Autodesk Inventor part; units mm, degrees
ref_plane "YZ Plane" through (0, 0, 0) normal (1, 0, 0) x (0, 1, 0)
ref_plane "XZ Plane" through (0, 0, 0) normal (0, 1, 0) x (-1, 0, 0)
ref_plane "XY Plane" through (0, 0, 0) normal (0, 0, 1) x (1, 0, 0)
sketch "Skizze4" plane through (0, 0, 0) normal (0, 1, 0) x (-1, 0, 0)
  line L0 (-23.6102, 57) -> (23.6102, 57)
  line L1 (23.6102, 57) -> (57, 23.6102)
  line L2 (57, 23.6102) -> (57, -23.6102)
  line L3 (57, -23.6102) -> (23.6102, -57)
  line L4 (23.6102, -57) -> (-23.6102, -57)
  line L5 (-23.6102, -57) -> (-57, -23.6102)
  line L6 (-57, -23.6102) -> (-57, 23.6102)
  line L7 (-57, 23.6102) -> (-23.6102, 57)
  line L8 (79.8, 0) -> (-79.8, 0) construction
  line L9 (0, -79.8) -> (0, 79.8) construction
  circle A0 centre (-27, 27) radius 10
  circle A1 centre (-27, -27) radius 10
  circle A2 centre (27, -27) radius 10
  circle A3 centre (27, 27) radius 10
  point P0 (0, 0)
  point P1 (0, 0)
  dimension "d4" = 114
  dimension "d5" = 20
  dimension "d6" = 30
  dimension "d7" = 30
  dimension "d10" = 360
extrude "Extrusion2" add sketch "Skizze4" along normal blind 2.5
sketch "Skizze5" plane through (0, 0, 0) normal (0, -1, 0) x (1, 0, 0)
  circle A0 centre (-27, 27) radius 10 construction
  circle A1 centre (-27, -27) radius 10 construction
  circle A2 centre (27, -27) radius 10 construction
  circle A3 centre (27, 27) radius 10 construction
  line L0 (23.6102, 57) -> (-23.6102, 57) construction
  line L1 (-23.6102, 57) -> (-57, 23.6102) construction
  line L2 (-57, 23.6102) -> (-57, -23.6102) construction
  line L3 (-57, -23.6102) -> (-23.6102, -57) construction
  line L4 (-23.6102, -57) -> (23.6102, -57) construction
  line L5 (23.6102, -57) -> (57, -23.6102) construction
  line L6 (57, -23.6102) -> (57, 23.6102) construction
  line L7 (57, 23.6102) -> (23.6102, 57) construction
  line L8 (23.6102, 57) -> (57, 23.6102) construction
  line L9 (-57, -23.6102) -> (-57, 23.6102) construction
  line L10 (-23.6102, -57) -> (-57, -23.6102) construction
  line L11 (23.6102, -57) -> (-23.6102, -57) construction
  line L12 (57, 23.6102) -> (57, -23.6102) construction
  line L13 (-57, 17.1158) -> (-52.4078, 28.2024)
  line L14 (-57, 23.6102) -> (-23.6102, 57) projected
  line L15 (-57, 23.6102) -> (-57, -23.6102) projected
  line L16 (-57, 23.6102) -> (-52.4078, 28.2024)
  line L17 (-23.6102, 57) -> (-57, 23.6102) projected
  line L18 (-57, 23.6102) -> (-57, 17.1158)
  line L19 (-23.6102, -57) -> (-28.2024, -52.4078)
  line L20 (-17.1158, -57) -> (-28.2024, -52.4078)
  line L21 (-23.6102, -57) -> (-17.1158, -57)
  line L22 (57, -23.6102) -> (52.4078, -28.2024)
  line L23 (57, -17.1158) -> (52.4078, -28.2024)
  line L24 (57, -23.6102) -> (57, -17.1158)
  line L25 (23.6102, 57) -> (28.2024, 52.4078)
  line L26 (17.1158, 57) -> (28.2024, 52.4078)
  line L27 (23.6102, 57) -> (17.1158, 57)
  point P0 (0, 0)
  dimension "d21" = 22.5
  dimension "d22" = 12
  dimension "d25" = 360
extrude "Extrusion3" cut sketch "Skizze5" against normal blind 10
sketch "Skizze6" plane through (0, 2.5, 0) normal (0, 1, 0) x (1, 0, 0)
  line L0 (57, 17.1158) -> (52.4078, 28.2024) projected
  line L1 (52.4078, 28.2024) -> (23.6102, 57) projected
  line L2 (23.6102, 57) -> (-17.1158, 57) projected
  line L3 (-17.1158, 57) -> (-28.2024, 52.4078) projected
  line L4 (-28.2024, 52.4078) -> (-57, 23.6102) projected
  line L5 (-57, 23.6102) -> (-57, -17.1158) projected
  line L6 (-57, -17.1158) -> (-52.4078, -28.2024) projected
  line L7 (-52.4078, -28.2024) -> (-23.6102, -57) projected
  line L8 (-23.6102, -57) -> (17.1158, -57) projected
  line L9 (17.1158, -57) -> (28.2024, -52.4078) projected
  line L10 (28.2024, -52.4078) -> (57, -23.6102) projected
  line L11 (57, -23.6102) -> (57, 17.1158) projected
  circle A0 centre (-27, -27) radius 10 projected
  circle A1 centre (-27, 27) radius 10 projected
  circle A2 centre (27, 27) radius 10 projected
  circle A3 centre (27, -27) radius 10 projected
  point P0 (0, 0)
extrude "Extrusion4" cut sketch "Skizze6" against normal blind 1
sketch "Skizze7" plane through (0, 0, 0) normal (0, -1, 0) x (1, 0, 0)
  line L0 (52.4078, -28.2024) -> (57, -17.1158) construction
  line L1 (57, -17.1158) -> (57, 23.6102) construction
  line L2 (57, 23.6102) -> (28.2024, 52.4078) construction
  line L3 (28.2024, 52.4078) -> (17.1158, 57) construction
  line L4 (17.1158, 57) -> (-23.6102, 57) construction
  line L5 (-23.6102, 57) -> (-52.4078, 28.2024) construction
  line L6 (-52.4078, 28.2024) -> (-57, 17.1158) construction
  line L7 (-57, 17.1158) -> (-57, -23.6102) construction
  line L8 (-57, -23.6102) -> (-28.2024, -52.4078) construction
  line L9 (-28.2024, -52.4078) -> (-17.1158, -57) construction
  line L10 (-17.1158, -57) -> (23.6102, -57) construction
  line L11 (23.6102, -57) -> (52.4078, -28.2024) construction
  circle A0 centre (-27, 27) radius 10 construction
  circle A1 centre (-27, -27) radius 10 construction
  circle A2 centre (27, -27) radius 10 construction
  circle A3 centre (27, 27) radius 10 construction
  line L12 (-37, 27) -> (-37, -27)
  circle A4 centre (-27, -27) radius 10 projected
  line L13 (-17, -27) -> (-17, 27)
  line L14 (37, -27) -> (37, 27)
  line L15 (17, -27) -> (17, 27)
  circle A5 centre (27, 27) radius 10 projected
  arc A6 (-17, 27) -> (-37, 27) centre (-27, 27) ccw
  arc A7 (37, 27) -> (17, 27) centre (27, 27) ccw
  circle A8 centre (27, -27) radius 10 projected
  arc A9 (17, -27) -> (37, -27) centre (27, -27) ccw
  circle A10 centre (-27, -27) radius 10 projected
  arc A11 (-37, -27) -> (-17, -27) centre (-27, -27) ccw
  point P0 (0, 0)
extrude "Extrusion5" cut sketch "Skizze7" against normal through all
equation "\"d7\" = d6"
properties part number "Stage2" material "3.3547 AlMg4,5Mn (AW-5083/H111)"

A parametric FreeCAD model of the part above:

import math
import FreeCAD as App
import Part
import Sketcher

V = App.Vector
Q = App.Units.Quantity


def add_polygon(sketch, points):
    """Adds a closed chain of lines whose ends are joined by coincident constraints."""
    first, n = sketch.GeometryCount, len(points)
    for a, b in zip(points, points[1:] + points[:1]):
        sketch.addGeometry(Part.LineSegment(App.Vector(*a, 0), App.Vector(*b, 0)), False)
    for i in range(n):
        sketch.addConstraint(Sketcher.Constraint("Coincident", first + i, 2, first + (i + 1) % n, 1))

doc = App.newDocument("Part")
body = doc.addObject("PartDesign::Body", "Body")

# Sketch on XZ plane
sketch1 = body.newObject("Sketcher::SketchObject", "Sketch")
sketch1.AttachmentSupport = (doc.getObject("XZ_Plane"), [""])
sketch1.MapMode = "FlatFace"
add_polygon(sketch1, [(-24, 57), (24, 57), (57, 24), (57, -24), (24, -57), (-24, -57), (-57, -24), (-57, 24)])  # lines 0-7
sketch1.addGeometry(Part.Circle(V(27, -27, 0), V(0, 0, 1), 10), False)  # 8
sketch1.addGeometry(Part.Circle(V(-27, -27, 0), V(0, 0, 1), 10), False)  # 9
sketch1.addGeometry(Part.Circle(V(27, 27, 0), V(0, 0, 1), 10), False)  # 10
sketch1.addGeometry(Part.Circle(V(-27, 27, 0), V(0, 0, 1), 10), False)  # 11
sketch1.addConstraint([
    Sketcher.Constraint("Horizontal", 0),
    Sketcher.Constraint("Vertical", 2),
    Sketcher.Constraint("Horizontal", 4),
    Sketcher.Constraint("Vertical", 6),
    Sketcher.Constraint("Equal", 8, 9),
    Sketcher.Constraint("Equal", 9, 10),
    Sketcher.Constraint("Equal", 10, 11),
    Sketcher.Constraint("Symmetric", 9, 3, 10, 3, -1, 1),
    Sketcher.Constraint("Symmetric", 8, 3, 11, 3, -1, 1),
    Sketcher.Constraint("Symmetric", 0, 2, 4, 2, -1, 1),
    Sketcher.Constraint("Symmetric", 1, 2, 5, 2, -1, 1),
    Sketcher.Constraint("Symmetric", 8, 3, 9, 3, -2),
    Sketcher.Constraint("Perpendicular", 1, 3),
    Sketcher.Constraint("Perpendicular", 5, 7),
    Sketcher.Constraint("Horizontal", 2, 2, 5, 2),
    Sketcher.Constraint("Horizontal", 1, 2, 6, 2),
    Sketcher.Constraint("Vertical", 0, 2, 3, 2),
    Sketcher.Constraint("Equal", 4, 2),
    Sketcher.Constraint("Diameter", 8, Q("20 mm")),
    Sketcher.Constraint("DistanceY", 10, 3, 0, 2, Q("30 mm")),
    Sketcher.Constraint("DistanceX", 10, 3, 1, 2, Q("30 mm")),
    Sketcher.Constraint("DistanceX", -1, 1, 8, 3, Q("27 mm")),
    Sketcher.Constraint("DistanceX", 0, 1, 0, 2, Q("47.2204 mm")),
])
pad1 = body.newObject("PartDesign::Pad", "Pad")
pad1.Profile = sketch1
pad1.Length = 2.5
pad1.Reversed = True

# Sketch on XZ plane
sketch2 = body.newObject("Sketcher::SketchObject", "Sketch001")
sketch2.AttachmentSupport = (doc.getObject("XZ_Plane"), [""])
sketch2.MapMode = "FlatFace"
add_polygon(sketch2, [(-57, 24), (-57, 17), (-52, 28)])  # lines 0-2
add_polygon(sketch2, [(-28, -52), (-24, -57), (-17, -57)])  # lines 3-5
add_polygon(sketch2, [(52, -28), (57, -24), (57, -17)])  # lines 6-8
add_polygon(sketch2, [(28, 52), (24, 57), (17, 57)])  # lines 9-11
sketch2.addConstraint([
    Sketcher.Constraint("Vertical", 0),
    Sketcher.Constraint("Horizontal", 4),
    Sketcher.Constraint("Vertical", 7),
    Sketcher.Constraint("Horizontal", 10),
    Sketcher.Constraint("Symmetric", 2, 2, 6, 2, -1, 1),
    Sketcher.Constraint("Symmetric", 1, 2, 8, 2, -1, 1),
    Sketcher.Constraint("Symmetric", 3, 2, 9, 2, -1, 1),
    Sketcher.Constraint("Symmetric", 5, 2, 11, 2, -1, 1),
    Sketcher.Constraint("Perpendicular", 2, 3),
    Sketcher.Constraint("Perpendicular", 1, 5),
    Sketcher.Constraint("Perpendicular", 5, 8),
    Sketcher.Constraint("Perpendicular", 8, 11),
    Sketcher.Constraint("Equal", 10, 0),
    Sketcher.Constraint("Distance", 1, Q("12 mm")),
    Sketcher.Constraint("Angle", 11, Q("-22.5 deg")),
    Sketcher.Constraint("Angle", 2, Q("-135 deg")),
    Sketcher.Constraint("DistanceX", 0, 2, -1, 1, Q("57 mm")),
    Sketcher.Constraint("DistanceY", 3, 2, -1, 1, Q("57 mm")),
    Sketcher.Constraint("DistanceX", 1, 2, 4, 2, Q("35.292 mm")),
    Sketcher.Constraint("DistanceY", 5, 2, 2, 2, Q("76.018 mm")),
])
pocket1 = body.newObject("PartDesign::Pocket", "Pocket")
pocket1.Profile = sketch2
pocket1.Length = 10

# Sketch on XZ plane
sketch3 = body.newObject("Sketcher::SketchObject", "Sketch002")
sketch3.AttachmentSupport = (doc.getObject("XZ_Plane"), [""])
sketch3.MapMode = "FlatFace"
sketch3.AttachmentOffset = App.Placement(V(0, 0, -2.5), App.Rotation())
add_polygon(sketch3, [(57, 24), (57, -17), (52, -28), (24, -57), (-17, -57), (-28, -52), (-57, -24), (-57, 17), (-52, 28), (-24, 57), (17, 57), (28, 52)])  # lines 0-11
sketch3.addGeometry(Part.Circle(V(-27, 27, 0), V(0, 0, 1), 10), False)  # 12
sketch3.addGeometry(Part.Circle(V(27, 27, 0), V(0, 0, 1), 10), False)  # 13
sketch3.addGeometry(Part.Circle(V(-27, -27, 0), V(0, 0, 1), 10), False)  # 14
sketch3.addGeometry(Part.Circle(V(27, -27, 0), V(0, 0, 1), 10), False)  # 15
sketch3.addConstraint([
    Sketcher.Constraint("Vertical", 0),
    Sketcher.Constraint("Horizontal", 3),
    Sketcher.Constraint("Vertical", 6),
    Sketcher.Constraint("Horizontal", 9),
    Sketcher.Constraint("Equal", 12, 13),
    Sketcher.Constraint("Equal", 13, 14),
    Sketcher.Constraint("Equal", 14, 15),
    Sketcher.Constraint("Symmetric", 13, 3, 14, 3, -1, 1),
    Sketcher.Constraint("Symmetric", 12, 3, 15, 3, -1, 1),
    Sketcher.Constraint("Symmetric", 0, 2, 6, 2, -1, 1),
    Sketcher.Constraint("Symmetric", 1, 2, 7, 2, -1, 1),
    Sketcher.Constraint("Symmetric", 2, 2, 8, 2, -1, 1),
    Sketcher.Constraint("Symmetric", 4, 2, 10, 2, -1, 1),
    Sketcher.Constraint("Symmetric", 12, 3, 13, 3, -2),
    Sketcher.Constraint("Perpendicular", 1, 4),
    Sketcher.Constraint("Perpendicular", 2, 5),
    Sketcher.Constraint("Perpendicular", 7, 10),
    Sketcher.Constraint("Perpendicular", 8, 11),
    Sketcher.Constraint("Equal", 9, 0),
    Sketcher.Constraint("Equal", 1, 4),
    Sketcher.Constraint("Equal", 2, 5),
    Sketcher.Constraint("Diameter", 12, Q("20 mm")),
    Sketcher.Constraint("Angle", 2, Q("-135 deg")),
    Sketcher.Constraint("Distance", 1, Q("12 mm")),
    Sketcher.Constraint("DistanceX", 12, 3, -1, 1, Q("27 mm")),
    Sketcher.Constraint("DistanceY", -1, 1, 12, 3, Q("27 mm")),
    Sketcher.Constraint("DistanceX", -1, 1, 0, 2, Q("57 mm")),
    Sketcher.Constraint("Angle", 1, Q("-112.5 deg")),
    Sketcher.Constraint("DistanceX", 3, 2, 3, 1, Q("40.726 mm")),
])
pocket2 = body.newObject("PartDesign::Pocket", "Pocket001")
pocket2.Profile = sketch3
pocket2.Length = 1
pocket2.Reversed = True

# Sketch on XZ plane
sketch4 = body.newObject("Sketcher::SketchObject", "Sketch003")
sketch4.AttachmentSupport = (doc.getObject("XZ_Plane"), [""])
sketch4.MapMode = "FlatFace"
sketch4.addGeometry([
    Part.ArcOfCircle(Part.Circle(V(-27, 27, 0), V(0, 0, 1), 10), math.radians(0), math.radians(180)),  # 0
    Part.LineSegment(V(-37, 27, 0), V(-37, -27, 0)),  # 1
    Part.ArcOfCircle(Part.Circle(V(-27, -27, 0), V(0, 0, 1), 10), math.radians(180), math.radians(360)),  # 2
    Part.LineSegment(V(-17, -27, 0), V(-17, 27, 0)),  # 3
    Part.LineSegment(V(17, 27, 0), V(17, -27, 0)),  # 4
    Part.ArcOfCircle(Part.Circle(V(27, -27, 0), V(0, 0, 1), 10), math.radians(180), math.radians(360)),  # 5
    Part.LineSegment(V(37, -27, 0), V(37, 27, 0)),  # 6
    Part.ArcOfCircle(Part.Circle(V(27, 27, 0), V(0, 0, 1), 10), math.radians(0), math.radians(180)),  # 7
], False)
sketch4.addConstraint([
    Sketcher.Constraint("Tangent", 0, 2, 1, 1),
    Sketcher.Constraint("Tangent", 1, 2, 2, 1),
    Sketcher.Constraint("Tangent", 2, 2, 3, 1),
    Sketcher.Constraint("Tangent", 3, 2, 0, 1),
    Sketcher.Constraint("Tangent", 4, 2, 5, 1),
    Sketcher.Constraint("Tangent", 5, 2, 6, 1),
    Sketcher.Constraint("Tangent", 6, 2, 7, 1),
    Sketcher.Constraint("Tangent", 7, 2, 4, 1),
    Sketcher.Constraint("Vertical", 1),
    Sketcher.Constraint("Vertical", 3),
    Sketcher.Constraint("Vertical", 4),
    Sketcher.Constraint("Vertical", 6),
    Sketcher.Constraint("Equal", 2, 5),
    Sketcher.Constraint("Symmetric", 0, 3, 5, 3, -1, 1),
    Sketcher.Constraint("Horizontal", 2, 3, 5, 3),
    Sketcher.Constraint("Horizontal", 0, 3, 7, 3),
    Sketcher.Constraint("Radius", 0, Q("10 mm")),
    Sketcher.Constraint("DistanceY", 1, 2, 1, 1, Q("54 mm")),
    Sketcher.Constraint("DistanceX", 0, 3, -1, 1, Q("27 mm")),
])
pocket3 = body.newObject("PartDesign::Pocket", "Pocket002")
pocket3.Profile = sketch4
pocket3.Type = "ThroughAll"

doc.recompute()
